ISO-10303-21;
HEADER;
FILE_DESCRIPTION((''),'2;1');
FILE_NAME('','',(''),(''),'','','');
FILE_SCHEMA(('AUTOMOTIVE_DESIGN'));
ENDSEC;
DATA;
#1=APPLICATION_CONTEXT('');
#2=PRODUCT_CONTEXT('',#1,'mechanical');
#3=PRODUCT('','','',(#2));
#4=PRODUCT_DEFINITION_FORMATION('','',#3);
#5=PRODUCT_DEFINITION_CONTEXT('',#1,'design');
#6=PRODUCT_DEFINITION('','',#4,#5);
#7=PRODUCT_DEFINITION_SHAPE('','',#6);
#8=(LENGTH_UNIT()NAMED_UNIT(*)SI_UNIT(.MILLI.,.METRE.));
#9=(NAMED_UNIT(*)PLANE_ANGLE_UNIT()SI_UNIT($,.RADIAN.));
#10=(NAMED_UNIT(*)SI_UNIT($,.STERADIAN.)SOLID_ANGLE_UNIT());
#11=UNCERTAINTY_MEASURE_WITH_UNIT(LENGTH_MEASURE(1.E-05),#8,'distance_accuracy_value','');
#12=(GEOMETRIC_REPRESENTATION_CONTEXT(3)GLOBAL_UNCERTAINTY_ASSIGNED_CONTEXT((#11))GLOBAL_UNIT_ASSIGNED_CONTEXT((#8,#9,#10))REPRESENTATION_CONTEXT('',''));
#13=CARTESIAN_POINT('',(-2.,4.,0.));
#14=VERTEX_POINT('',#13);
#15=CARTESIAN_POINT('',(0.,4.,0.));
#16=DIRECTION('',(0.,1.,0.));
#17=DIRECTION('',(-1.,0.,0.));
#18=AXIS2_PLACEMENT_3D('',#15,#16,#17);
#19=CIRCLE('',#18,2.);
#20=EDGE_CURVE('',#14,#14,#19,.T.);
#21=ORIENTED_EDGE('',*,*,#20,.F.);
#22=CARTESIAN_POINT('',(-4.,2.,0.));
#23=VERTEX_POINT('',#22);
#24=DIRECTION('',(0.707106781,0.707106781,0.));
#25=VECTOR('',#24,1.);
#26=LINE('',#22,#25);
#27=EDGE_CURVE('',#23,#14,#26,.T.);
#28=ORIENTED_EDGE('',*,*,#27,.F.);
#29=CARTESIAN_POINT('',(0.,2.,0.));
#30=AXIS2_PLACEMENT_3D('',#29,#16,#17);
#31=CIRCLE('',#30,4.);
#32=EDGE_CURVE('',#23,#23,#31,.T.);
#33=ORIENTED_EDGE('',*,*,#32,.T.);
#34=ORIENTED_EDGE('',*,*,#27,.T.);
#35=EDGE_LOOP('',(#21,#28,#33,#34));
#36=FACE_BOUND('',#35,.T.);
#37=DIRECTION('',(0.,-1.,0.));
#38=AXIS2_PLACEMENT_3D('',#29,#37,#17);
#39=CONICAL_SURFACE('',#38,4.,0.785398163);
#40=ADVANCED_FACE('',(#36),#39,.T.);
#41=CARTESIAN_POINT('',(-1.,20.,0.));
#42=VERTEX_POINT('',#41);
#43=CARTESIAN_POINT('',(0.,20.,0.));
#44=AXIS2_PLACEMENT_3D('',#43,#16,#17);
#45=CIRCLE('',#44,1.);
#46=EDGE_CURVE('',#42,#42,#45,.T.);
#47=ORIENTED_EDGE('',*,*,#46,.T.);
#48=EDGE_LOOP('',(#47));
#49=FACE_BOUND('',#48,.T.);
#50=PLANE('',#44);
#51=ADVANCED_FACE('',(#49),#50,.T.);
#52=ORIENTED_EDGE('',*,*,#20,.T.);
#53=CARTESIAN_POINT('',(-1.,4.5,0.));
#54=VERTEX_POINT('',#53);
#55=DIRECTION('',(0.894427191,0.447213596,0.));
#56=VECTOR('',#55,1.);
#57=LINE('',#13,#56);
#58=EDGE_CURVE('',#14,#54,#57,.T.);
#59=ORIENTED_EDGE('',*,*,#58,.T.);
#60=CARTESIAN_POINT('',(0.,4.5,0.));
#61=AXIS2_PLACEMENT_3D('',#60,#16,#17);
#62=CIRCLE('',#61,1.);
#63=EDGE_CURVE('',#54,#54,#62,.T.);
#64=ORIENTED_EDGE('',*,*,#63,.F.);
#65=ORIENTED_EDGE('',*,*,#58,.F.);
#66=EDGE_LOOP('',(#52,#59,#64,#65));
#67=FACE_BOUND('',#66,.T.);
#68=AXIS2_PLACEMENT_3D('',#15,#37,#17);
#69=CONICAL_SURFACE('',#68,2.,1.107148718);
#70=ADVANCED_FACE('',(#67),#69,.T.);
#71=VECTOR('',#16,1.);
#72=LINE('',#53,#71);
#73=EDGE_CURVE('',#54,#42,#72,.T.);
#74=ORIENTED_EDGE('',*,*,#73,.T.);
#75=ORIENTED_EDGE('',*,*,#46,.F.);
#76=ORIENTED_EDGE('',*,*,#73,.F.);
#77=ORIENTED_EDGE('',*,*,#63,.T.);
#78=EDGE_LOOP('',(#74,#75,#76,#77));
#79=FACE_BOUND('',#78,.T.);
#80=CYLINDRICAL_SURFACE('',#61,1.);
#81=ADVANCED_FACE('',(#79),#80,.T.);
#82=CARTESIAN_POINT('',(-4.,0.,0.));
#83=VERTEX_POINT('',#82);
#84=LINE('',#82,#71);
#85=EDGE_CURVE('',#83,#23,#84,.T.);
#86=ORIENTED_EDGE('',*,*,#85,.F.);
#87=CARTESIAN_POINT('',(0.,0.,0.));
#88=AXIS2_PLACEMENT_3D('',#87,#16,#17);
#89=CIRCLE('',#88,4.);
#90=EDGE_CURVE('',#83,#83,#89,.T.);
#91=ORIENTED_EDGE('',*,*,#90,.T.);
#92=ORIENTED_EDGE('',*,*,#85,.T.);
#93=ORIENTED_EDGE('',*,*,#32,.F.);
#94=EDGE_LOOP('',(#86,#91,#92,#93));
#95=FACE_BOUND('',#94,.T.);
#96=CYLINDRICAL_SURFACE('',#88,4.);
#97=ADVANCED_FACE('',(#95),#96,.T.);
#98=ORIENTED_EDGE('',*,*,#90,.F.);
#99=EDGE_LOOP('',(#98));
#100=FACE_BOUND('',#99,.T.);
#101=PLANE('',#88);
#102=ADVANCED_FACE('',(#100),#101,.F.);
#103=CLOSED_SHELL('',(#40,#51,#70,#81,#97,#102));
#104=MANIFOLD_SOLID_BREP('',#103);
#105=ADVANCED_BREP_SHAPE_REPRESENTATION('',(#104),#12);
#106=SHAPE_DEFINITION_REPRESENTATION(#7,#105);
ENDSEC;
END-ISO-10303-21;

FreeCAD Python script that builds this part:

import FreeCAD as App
import Part
import Sketcher
Q = App.Units.Quantity

doc = App.newDocument("Part")
body = doc.addObject("PartDesign::Body", "Body")

sketch1 = body.newObject("Sketcher::SketchObject", "Sketch")
sketch1.AttachmentSupport = (doc.getObject("XY_Plane"), [""])
sketch1.MapMode = "FlatFace"
sketch1.addGeometry(Part.LineSegment(App.Vector(-4, 0, 0), App.Vector(0, 0, 0)), False)
sketch1.addGeometry(Part.LineSegment(App.Vector(0, 0, 0), App.Vector(0, 20, 0)), False)
sketch1.addGeometry(Part.LineSegment(App.Vector(0, 20, 0), App.Vector(-1, 20, 0)), False)
sketch1.addGeometry(Part.LineSegment(App.Vector(-1, 20, 0), App.Vector(-1, 4.5, 0)), False)
sketch1.addGeometry(Part.LineSegment(App.Vector(-1, 4.5, 0), App.Vector(-2, 4, 0)), False)
sketch1.addGeometry(Part.LineSegment(App.Vector(-2, 4, 0), App.Vector(-4, 2, 0)), False)
sketch1.addGeometry(Part.LineSegment(App.Vector(-4, 2, 0), App.Vector(-4, 0, 0)), False)
sketch1.addConstraint(Sketcher.Constraint("Coincident", 0, 2, 1, 1))
sketch1.addConstraint(Sketcher.Constraint("Coincident", 1, 2, 2, 1))
sketch1.addConstraint(Sketcher.Constraint("Coincident", 2, 2, 3, 1))
sketch1.addConstraint(Sketcher.Constraint("Coincident", 3, 2, 4, 1))
sketch1.addConstraint(Sketcher.Constraint("Coincident", 4, 2, 5, 1))
sketch1.addConstraint(Sketcher.Constraint("Coincident", 5, 2, 6, 1))
sketch1.addConstraint(Sketcher.Constraint("Coincident", 6, 2, 0, 1))
sketch1.addConstraint(Sketcher.Constraint("Horizontal", 0))
sketch1.addConstraint(Sketcher.Constraint("Vertical", 1))
sketch1.addConstraint(Sketcher.Constraint("Horizontal", 2))
sketch1.addConstraint(Sketcher.Constraint("Vertical", 3))
sketch1.addConstraint(Sketcher.Constraint("Vertical", 6))
sketch1.addConstraint(Sketcher.Constraint("Coincident", 0, 2, -1, 1))
sketch1.addConstraint(Sketcher.Constraint("DistanceX", 0, 1, 0, 2, 4.0))
sketch1.addConstraint(Sketcher.Constraint("DistanceX", 2, 2, 2, 1, 1.0))
sketch1.addConstraint(Sketcher.Constraint("DistanceY", 1, 1, 1, 2, 20.0))
sketch1.addConstraint(Sketcher.Constraint("DistanceY", 6, 2, 6, 1, 2.0))
sketch1.addConstraint(Sketcher.Constraint("Angle", 5, Q("-135 deg")))
sketch1.addConstraint(Sketcher.Constraint("DistanceY", 3, 2, 3, 1, 15.5))
sketch1.addConstraint(Sketcher.Constraint("DistanceX", 4, 2, -1, 1, 2.0))
revolution = body.newObject("PartDesign::Revolution", "Revolution")
revolution.Profile = sketch1
revolution.ReferenceAxis = (sketch1, ["V_Axis"])
revolution.Angle = 360

doc.recompute()
